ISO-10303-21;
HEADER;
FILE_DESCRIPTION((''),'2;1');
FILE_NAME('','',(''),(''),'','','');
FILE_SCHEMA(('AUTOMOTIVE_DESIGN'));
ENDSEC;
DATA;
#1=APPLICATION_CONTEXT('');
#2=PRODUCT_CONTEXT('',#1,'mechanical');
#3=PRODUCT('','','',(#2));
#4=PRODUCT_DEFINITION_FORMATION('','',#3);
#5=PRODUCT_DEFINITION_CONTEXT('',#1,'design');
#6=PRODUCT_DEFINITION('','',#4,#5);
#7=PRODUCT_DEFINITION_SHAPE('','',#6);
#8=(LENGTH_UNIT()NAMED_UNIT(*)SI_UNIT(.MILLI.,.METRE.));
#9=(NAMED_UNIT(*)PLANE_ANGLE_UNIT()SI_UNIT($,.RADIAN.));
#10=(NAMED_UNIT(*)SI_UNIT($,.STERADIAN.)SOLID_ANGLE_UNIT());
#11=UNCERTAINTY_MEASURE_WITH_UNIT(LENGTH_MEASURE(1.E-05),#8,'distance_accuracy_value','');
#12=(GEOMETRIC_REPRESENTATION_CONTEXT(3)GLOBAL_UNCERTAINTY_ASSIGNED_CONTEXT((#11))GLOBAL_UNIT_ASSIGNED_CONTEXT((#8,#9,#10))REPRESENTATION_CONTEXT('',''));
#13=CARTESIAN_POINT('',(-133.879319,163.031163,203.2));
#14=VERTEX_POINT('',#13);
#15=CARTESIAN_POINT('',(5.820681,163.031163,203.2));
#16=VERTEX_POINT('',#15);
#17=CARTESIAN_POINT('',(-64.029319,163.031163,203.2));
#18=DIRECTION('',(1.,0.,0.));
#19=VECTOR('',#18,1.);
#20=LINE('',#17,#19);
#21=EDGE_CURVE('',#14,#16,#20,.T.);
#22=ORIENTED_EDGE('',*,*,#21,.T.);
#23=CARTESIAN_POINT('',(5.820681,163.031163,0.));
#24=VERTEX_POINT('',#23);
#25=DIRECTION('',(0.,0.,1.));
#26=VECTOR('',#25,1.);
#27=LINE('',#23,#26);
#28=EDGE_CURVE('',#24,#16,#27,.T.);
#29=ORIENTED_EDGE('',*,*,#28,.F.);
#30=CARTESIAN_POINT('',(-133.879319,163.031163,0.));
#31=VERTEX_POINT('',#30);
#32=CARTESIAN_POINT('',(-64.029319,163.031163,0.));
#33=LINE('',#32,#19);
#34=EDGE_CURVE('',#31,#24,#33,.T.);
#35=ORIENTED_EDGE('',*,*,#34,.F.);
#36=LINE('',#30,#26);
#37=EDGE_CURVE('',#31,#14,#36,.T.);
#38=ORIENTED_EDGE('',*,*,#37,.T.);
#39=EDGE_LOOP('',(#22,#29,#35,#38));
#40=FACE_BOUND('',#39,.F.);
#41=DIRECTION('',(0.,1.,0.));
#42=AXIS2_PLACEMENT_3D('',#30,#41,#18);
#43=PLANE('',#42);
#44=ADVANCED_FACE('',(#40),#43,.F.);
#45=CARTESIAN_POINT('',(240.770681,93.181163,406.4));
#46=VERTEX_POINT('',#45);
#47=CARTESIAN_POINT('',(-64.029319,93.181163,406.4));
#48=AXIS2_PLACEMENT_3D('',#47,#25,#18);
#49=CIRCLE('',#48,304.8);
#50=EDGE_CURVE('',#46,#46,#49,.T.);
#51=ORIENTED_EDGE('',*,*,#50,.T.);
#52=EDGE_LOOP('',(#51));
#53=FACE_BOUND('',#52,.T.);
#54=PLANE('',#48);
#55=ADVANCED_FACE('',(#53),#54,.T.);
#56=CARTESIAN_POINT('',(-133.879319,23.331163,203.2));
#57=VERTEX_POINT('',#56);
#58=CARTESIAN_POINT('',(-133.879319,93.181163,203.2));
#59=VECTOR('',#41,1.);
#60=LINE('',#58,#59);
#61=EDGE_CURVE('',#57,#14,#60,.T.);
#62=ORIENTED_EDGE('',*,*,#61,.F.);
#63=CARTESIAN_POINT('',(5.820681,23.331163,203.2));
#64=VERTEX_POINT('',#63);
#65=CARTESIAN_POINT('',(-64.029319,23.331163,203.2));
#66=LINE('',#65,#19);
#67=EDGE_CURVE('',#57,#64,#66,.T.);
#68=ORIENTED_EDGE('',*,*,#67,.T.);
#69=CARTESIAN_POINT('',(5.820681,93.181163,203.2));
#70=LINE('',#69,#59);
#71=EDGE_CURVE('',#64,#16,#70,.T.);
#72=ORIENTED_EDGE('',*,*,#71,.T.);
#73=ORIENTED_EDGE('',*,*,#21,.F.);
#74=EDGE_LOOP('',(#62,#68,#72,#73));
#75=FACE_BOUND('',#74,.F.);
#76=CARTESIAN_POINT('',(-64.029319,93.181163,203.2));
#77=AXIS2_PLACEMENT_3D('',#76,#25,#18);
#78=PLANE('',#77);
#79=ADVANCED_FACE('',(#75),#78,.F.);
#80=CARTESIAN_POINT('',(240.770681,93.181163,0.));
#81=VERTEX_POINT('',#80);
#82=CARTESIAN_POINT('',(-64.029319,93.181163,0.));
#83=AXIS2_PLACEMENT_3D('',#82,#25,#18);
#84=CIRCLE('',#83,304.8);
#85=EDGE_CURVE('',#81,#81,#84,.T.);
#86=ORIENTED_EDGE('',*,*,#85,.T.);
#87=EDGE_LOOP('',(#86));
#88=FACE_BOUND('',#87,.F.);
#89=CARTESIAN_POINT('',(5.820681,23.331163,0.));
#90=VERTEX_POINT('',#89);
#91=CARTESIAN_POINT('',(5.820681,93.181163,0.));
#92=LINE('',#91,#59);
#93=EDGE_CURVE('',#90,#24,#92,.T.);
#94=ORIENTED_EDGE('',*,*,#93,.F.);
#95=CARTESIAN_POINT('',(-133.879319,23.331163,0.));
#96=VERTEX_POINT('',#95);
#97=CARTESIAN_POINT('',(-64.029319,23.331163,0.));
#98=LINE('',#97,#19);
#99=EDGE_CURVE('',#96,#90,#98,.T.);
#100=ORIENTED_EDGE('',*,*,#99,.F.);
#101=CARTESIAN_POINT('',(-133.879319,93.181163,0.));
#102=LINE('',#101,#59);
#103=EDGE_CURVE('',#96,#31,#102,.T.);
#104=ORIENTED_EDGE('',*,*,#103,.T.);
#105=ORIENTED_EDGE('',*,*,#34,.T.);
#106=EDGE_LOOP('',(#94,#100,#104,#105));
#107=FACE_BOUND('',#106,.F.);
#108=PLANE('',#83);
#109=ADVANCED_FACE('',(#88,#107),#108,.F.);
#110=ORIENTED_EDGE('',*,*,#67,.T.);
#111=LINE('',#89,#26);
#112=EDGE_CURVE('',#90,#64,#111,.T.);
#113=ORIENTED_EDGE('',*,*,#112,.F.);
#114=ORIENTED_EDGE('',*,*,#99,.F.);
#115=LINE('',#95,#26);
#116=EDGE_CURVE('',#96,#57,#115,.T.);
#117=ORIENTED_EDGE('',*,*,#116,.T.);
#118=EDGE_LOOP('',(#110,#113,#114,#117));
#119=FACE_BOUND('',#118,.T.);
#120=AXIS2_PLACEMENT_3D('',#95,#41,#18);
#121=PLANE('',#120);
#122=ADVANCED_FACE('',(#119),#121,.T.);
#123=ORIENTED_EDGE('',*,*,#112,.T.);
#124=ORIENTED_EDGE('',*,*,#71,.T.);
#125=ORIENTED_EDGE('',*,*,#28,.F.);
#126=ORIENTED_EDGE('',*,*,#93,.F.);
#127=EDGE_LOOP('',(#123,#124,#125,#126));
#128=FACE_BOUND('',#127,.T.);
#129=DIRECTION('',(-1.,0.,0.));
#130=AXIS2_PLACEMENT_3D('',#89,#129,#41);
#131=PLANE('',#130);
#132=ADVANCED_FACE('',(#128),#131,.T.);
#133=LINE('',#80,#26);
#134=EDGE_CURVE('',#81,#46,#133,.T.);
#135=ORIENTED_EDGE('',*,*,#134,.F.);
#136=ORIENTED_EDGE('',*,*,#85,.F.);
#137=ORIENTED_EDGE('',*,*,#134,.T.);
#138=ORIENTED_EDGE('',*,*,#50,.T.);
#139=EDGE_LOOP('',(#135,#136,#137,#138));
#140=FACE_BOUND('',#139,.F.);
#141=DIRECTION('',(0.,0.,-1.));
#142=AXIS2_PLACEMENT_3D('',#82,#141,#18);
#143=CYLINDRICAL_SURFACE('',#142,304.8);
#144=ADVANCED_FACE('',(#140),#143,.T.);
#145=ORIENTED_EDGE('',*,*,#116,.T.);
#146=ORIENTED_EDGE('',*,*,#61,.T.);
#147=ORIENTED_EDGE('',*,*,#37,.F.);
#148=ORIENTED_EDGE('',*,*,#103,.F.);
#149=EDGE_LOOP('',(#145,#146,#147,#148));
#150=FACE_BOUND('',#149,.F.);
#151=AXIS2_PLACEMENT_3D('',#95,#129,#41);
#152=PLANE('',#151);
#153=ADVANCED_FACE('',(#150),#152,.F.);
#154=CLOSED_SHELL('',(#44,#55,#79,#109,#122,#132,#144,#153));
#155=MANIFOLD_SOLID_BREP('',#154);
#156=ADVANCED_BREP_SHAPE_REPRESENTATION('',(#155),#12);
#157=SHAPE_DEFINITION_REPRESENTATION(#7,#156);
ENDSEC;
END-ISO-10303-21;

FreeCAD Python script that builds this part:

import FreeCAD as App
import Part
import Sketcher
from FreeCAD import Vector
Q = App.Units.Quantity

doc = App.newDocument("Part")
body = doc.addObject("PartDesign::Body", "Body")

# Sketch on XY plane
sketch1 = body.newObject("Sketcher::SketchObject", "Sketch")
sketch1.AttachmentSupport = (doc.getObject("XY_Plane"), [""])
sketch1.MapMode = "FlatFace"
sketch1.addGeometry([
    Part.Circle(Vector(-64, 93, 0), Vector(0, 0, 1), 305),  # 0
    Part.LineSegment(Vector(6, 23, 0), Vector(-134, 23, 0)),  # 1
    Part.LineSegment(Vector(-134, 23, 0), Vector(-134, 163, 0)),  # 2
    Part.LineSegment(Vector(-134, 163, 0), Vector(6, 163, 0)),  # 3
    Part.LineSegment(Vector(6, 163, 0), Vector(6, 23, 0)),  # 4
], False)
sketch1.addConstraint([
    Sketcher.Constraint("Coincident", 1, 2, 2, 1),
    Sketcher.Constraint("Coincident", 2, 2, 3, 1),
    Sketcher.Constraint("Coincident", 3, 2, 4, 1),
    Sketcher.Constraint("Coincident", 4, 2, 1, 1),
    Sketcher.Constraint("Horizontal", 1),
    Sketcher.Constraint("Vertical", 2),
    Sketcher.Constraint("Horizontal", 3),
    Sketcher.Constraint("Vertical", 4),
    Sketcher.Constraint("Equal", 3, 2),
    Sketcher.Constraint("Diameter", 0, Q("24 in")),
    Sketcher.Constraint("DistanceX", 1, 2, 1, 1, Q("5.5 in")),
    Sketcher.Constraint("DistanceX", 1, 2, 0, 3, Q("2.75 in")),
    Sketcher.Constraint("DistanceY", 1, 2, 0, 3, Q("2.75 in")),
    Sketcher.Constraint("DistanceX", 0, 3, -1, 1, 64.029319),
    Sketcher.Constraint("DistanceY", -1, 1, 0, 3, 93.181163),
])
pad1 = body.newObject("PartDesign::Pad", "Pad")
pad1.Profile = sketch1
pad1.Length = Q("16 in")

# Sketch on XY plane
sketch2 = body.newObject("Sketcher::SketchObject", "Sketch001")
sketch2.AttachmentSupport = (doc.getObject("XY_Plane"), [""])
sketch2.MapMode = "FlatFace"
sketch2.AttachmentOffset = App.Placement(Vector(0, 0, 16 * 25.4), App.Rotation())
sketch2.addGeometry([
    Part.LineSegment(Vector(-134, 163, 0), Vector(-134, 23, 0)),
    Part.LineSegment(Vector(-134, 23, 0), Vector(6, 23, 0)),
    Part.LineSegment(Vector(6, 23, 0), Vector(6, 163, 0)),
    Part.LineSegment(Vector(6, 163, 0), Vector(-134, 163, 0)),
], False)
sketch2.addConstraint([
    Sketcher.Constraint("Coincident", 0, 2, 1, 1),
    Sketcher.Constraint("Coincident", 1, 2, 2, 1),
    Sketcher.Constraint("Coincident", 2, 2, 3, 1),
    Sketcher.Constraint("Coincident", 3, 2, 0, 1),
    Sketcher.Constraint("Vertical", 0),
    Sketcher.Constraint("Horizontal", 1),
    Sketcher.Constraint("Vertical", 2),
    Sketcher.Constraint("Horizontal", 3),
    Sketcher.Constraint("Equal", 3, 0),
    Sketcher.Constraint("DistanceX", 1, 1, 1, 2, Q("5.5 in")),
    Sketcher.Constraint("DistanceX", 0, 2, -1, 1, 133.879319),
    Sketcher.Constraint("DistanceY", -1, 1, 0, 2, 23.331163),
])
pad2 = body.newObject("PartDesign::Pad", "Pad001")
pad2.Profile = sketch2
pad2.Length = Q("8 in")
pad2.Reversed = True

doc.recompute()
